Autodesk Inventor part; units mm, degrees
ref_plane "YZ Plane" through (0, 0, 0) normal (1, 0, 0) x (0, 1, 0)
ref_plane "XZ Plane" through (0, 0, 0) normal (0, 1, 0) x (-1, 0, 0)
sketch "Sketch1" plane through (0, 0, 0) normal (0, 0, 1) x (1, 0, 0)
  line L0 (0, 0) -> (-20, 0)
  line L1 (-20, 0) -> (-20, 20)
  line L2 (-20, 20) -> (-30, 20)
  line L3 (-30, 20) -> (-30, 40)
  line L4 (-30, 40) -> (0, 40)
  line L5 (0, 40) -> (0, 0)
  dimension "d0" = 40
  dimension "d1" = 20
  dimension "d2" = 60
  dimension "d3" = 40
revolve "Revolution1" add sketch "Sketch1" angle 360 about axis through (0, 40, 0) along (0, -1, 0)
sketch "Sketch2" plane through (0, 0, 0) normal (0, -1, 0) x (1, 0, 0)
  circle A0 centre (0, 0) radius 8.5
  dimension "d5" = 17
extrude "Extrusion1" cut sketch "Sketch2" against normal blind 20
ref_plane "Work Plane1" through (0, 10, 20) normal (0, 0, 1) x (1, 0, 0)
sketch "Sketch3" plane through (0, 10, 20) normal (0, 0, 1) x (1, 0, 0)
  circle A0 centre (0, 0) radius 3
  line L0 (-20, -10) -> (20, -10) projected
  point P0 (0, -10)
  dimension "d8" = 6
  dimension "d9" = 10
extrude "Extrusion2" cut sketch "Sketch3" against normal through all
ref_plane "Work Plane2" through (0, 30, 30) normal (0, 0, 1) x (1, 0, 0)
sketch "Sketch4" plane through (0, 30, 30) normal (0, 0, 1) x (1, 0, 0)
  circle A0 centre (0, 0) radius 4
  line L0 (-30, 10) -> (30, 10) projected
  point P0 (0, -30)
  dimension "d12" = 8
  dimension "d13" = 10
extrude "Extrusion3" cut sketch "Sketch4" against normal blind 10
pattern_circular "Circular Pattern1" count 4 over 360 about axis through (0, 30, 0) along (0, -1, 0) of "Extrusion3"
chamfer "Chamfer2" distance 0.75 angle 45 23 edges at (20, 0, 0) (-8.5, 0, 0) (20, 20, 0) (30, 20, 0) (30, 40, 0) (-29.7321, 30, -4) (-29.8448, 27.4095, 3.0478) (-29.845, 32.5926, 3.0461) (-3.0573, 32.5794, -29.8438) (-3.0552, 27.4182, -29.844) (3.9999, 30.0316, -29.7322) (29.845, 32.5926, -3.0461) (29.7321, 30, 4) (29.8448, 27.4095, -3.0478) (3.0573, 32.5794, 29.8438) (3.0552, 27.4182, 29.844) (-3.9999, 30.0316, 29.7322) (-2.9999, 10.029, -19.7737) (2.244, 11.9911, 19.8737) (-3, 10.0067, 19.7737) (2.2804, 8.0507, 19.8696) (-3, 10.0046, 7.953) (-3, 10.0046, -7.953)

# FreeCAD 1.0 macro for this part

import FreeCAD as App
import Part
import Sketcher
from FreeCAD import Vector


def edges_at(feature, points):
    """Names of the edges that pass closest to the given points."""
    edges = feature.Shape.Edges
    near = lambda p: min(range(len(edges)), key=lambda i: edges[i].distToShape(Part.Vertex(*p))[0])
    return sorted({f"Edge{near(p) + 1}" for p in points})

doc = App.newDocument("Part")
params = doc.addObject("Spreadsheet::Sheet", "Params")
for row, (alias, value) in enumerate([
    ("sketch1_width", "20 mm"),
    ("sketch1_width2", "30 mm"),
    ("revolution_angle", "360 deg"),
    ("sketch2_diameter", "17 mm"),
    ("pocket1_length", "20 mm"),
    ("sketch3_diameter", "6 mm"),
    ("sketch4_diameter", "8 mm"),
    ("pocket3_length", "10 mm"),
    ("chamfer_size", "0.75 mm"),
], start=1):
    params.set(f"A{row}", alias)
    params.set(f"B{row}", "=" + value)
    params.setAlias(f"B{row}", alias)

body = doc.addObject("PartDesign::Body", "Body")

sketch1 = doc.addObject("Sketcher::SketchObject", "Sketch")
body.addObject(sketch1)
sketch1.AttachmentSupport = (doc.XY_Plane, [""])
sketch1.MapMode = "FlatFace"
sketch1.addGeometry([
    Part.LineSegment(Vector(-20, 0, 0), Vector(0, 0, 0)),
    Part.LineSegment(Vector(0, 0, 0), Vector(0, 40, 0)),
    Part.LineSegment(Vector(0, 40, 0), Vector(-30, 40, 0)),
    Part.LineSegment(Vector(-30, 40, 0), Vector(-30, 20, 0)),
    Part.LineSegment(Vector(-30, 20, 0), Vector(-20, 20, 0)),
    Part.LineSegment(Vector(-20, 20, 0), Vector(-20, 0, 0)),
], False)
sketch1.addConstraint([
    Sketcher.Constraint("Coincident", 0, 2, 1, 1),
    Sketcher.Constraint("Coincident", 1, 2, 2, 1),
    Sketcher.Constraint("Coincident", 2, 2, 3, 1),
    Sketcher.Constraint("Coincident", 3, 2, 4, 1),
    Sketcher.Constraint("Coincident", 4, 2, 5, 1),
    Sketcher.Constraint("Coincident", 5, 2, 0, 1),
    Sketcher.Constraint("Horizontal", 0),
    Sketcher.Constraint("Vertical", 1),
    Sketcher.Constraint("Horizontal", 2),
    Sketcher.Constraint("Vertical", 3),
    Sketcher.Constraint("Horizontal", 4),
    Sketcher.Constraint("Vertical", 5),
    Sketcher.Constraint("Coincident", 0, 2, -1, 1),
    Sketcher.Constraint("Equal", 0, 3),
    Sketcher.Constraint("Equal", 3, 5),
    Sketcher.Constraint("DistanceX", 0, 1, 0, 2, 20.0),
    Sketcher.Constraint("DistanceX", 2, 2, 2, 1, 30.0),
])
sketch1.setExpression("Constraints[15]", "Params.sketch1_width")
sketch1.setExpression("Constraints[16]", "Params.sketch1_width2")
revolution = doc.addObject("PartDesign::Revolution", "Revolution")
body.addObject(revolution)
revolution.Profile = sketch1
revolution.ReferenceAxis = (sketch1, ["V_Axis"])
revolution.setExpression("Angle", "Params.revolution_angle")

sketch2 = doc.addObject("Sketcher::SketchObject", "Sketch001")
body.addObject(sketch2)
sketch2.AttachmentSupport = (doc.XZ_Plane, [""])
sketch2.MapMode = "FlatFace"
sketch2.addGeometry(Part.Circle(Vector(0, 0, 0), Vector(0, 0, 1), 8), False)
sketch2.addConstraint([
    Sketcher.Constraint("Coincident", 0, 3, -1, 1),
    Sketcher.Constraint("Diameter", 0, 17.0),
])
sketch2.setExpression("Constraints[1]", "Params.sketch2_diameter")
pocket1 = doc.addObject("PartDesign::Pocket", "Pocket")
body.addObject(pocket1)
pocket1.Profile = sketch2
pocket1.setExpression("Length", "Params.pocket1_length")

sketch3 = doc.addObject("Sketcher::SketchObject", "Sketch002")
body.addObject(sketch3)
sketch3.AttachmentSupport = (doc.XY_Plane, [""])
sketch3.MapMode = "FlatFace"
sketch3.AttachmentOffset = App.Placement(Vector(0, 0, 20), App.Rotation())
sketch3.addGeometry(Part.Circle(Vector(0, 10, 0), Vector(0, 0, 1), 3), False)
sketch3.addConstraint([
    Sketcher.Constraint("PointOnObject", 0, 3, -2),
    Sketcher.Constraint("Diameter", 0, 6.0),
    Sketcher.Constraint("DistanceY", -1, 1, 0, 3, 10.0),
])
sketch3.setExpression("Constraints[1]", "Params.sketch3_diameter")
pocket2 = doc.addObject("PartDesign::Pocket", "Pocket001")
body.addObject(pocket2)
pocket2.Profile = sketch3
pocket2.Type = "ThroughAll"

sketch4 = doc.addObject("Sketcher::SketchObject", "Sketch003")
body.addObject(sketch4)
sketch4.AttachmentSupport = (doc.XY_Plane, [""])
sketch4.MapMode = "FlatFace"
sketch4.AttachmentOffset = App.Placement(Vector(0, 0, 30), App.Rotation())
sketch4.addGeometry(Part.Circle(Vector(0, 30, 0), Vector(0, 0, 1), 4), False)
sketch4.addConstraint([
    Sketcher.Constraint("PointOnObject", 0, 3, -2),
    Sketcher.Constraint("Diameter", 0, 8.0),
    Sketcher.Constraint("DistanceY", -1, 1, 0, 3, 30.0),
])
sketch4.setExpression("Constraints[1]", "Params.sketch4_diameter")
pocket3 = doc.addObject("PartDesign::Pocket", "Pocket002")
body.addObject(pocket3)
pocket3.Profile = sketch4
pocket3.setExpression("Length", "Params.pocket3_length")
doc.recompute()

polarpattern = doc.addObject("PartDesign::PolarPattern", "PolarPattern")
body.addObject(polarpattern)
polarpattern.Originals = [pocket3]
polarpattern.Axis = (doc.Y_Axis, [""])
polarpattern.Angle = 360
polarpattern.Occurrences = 4
body.Tip = polarpattern
doc.recompute()

chamfer = doc.addObject("PartDesign::Chamfer", "Chamfer")
body.addObject(chamfer)
chamfer.Base = (polarpattern, edges_at(polarpattern, [
    (20, 0, 0),
    (-8.5, 0, 0),
    (20, 20, 0),
    (30, 20, 0),
    (30, 40, 0),
    (-29.732, 30, -4),
    (-29.845, 27.41, 3.048),
    (-29.845, 32.593, 3.046),
    (-3.057, 32.579, -29.844),
    (-3.055, 27.418, -29.844),
    (4, 30.032, -29.732),
    (29.845, 32.593, -3.046),
    (29.732, 30, 4),
    (29.845, 27.41, -3.048),
    (3.057, 32.579, 29.844),
    (3.055, 27.418, 29.844),
    (-4, 30.032, 29.732),
    (-3, 10.029, -19.774),
    (2.244, 11.991, 19.874),
    (-3, 10.007, 19.774),
    (2.28, 8.051, 19.87),
    (-3, 10.005, 7.953),
    (-3, 10.005, -7.953),
]))
chamfer.setExpression("Size", "Params.chamfer_size")

doc.recompute()
